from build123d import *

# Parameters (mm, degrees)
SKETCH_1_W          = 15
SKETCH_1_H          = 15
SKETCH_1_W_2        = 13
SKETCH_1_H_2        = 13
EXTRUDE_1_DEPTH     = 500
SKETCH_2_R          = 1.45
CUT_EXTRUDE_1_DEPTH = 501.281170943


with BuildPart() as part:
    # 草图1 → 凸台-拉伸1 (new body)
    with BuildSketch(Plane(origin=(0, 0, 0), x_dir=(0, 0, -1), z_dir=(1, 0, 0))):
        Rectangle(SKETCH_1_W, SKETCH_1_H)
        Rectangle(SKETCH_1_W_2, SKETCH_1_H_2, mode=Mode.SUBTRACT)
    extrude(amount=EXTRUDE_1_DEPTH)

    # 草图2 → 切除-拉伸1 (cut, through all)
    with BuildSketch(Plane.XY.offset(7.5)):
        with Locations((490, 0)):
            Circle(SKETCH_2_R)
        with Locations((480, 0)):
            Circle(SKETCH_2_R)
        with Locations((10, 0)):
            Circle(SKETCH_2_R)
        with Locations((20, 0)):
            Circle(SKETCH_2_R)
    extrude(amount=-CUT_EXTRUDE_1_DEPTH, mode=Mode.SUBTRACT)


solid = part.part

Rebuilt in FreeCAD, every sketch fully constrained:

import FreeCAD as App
import Part
import Sketcher
from FreeCAD import Vector

doc = App.newDocument("Part")
body = doc.addObject("PartDesign::Body", "Body")

# Sketch on YZ plane
sketch1 = body.newObject("Sketcher::SketchObject", "Sketch")
sketch1.AttachmentSupport = (doc.getObject("YZ_Plane"), [""])
sketch1.MapMode = "FlatFace"
sketch1.addGeometry(Part.LineSegment(Vector(8, 8, 0), Vector(-8, 8, 0)), False)
sketch1.addGeometry(Part.LineSegment(Vector(-8, 8, 0), Vector(-8, -8, 0)), False)
sketch1.addGeometry(Part.LineSegment(Vector(-8, -8, 0), Vector(8, -8, 0)), False)
sketch1.addGeometry(Part.LineSegment(Vector(8, -8, 0), Vector(8, 8, 0)), False)
sketch1.addGeometry(Part.LineSegment(Vector(-6, -6, 0), Vector(-6, 6, 0)), False)
sketch1.addGeometry(Part.LineSegment(Vector(-6, 6, 0), Vector(6, 6, 0)), False)
sketch1.addGeometry(Part.LineSegment(Vector(6, 6, 0), Vector(6, -6, 0)), False)
sketch1.addGeometry(Part.LineSegment(Vector(6, -6, 0), Vector(-6, -6, 0)), False)
sketch1.addConstraint(Sketcher.Constraint("Coincident", 0, 2, 1, 1))
sketch1.addConstraint(Sketcher.Constraint("Coincident", 1, 2, 2, 1))
sketch1.addConstraint(Sketcher.Constraint("Coincident", 2, 2, 3, 1))
sketch1.addConstraint(Sketcher.Constraint("Coincident", 3, 2, 0, 1))
sketch1.addConstraint(Sketcher.Constraint("Coincident", 4, 2, 5, 1))
sketch1.addConstraint(Sketcher.Constraint("Coincident", 5, 2, 6, 1))
sketch1.addConstraint(Sketcher.Constraint("Coincident", 6, 2, 7, 1))
sketch1.addConstraint(Sketcher.Constraint("Coincident", 7, 2, 4, 1))
sketch1.addConstraint(Sketcher.Constraint("Horizontal", 0))
sketch1.addConstraint(Sketcher.Constraint("Vertical", 1))
sketch1.addConstraint(Sketcher.Constraint("Horizontal", 2))
sketch1.addConstraint(Sketcher.Constraint("Vertical", 3))
sketch1.addConstraint(Sketcher.Constraint("Vertical", 4))
sketch1.addConstraint(Sketcher.Constraint("Horizontal", 5))
sketch1.addConstraint(Sketcher.Constraint("Vertical", 6))
sketch1.addConstraint(Sketcher.Constraint("Horizontal", 7))
sketch1.addConstraint(Sketcher.Constraint("Symmetric", 0, 2, 2, 2, -1, 1))
sketch1.addConstraint(Sketcher.Constraint("Symmetric", 4, 2, 6, 2, -1, 1))
sketch1.addConstraint(Sketcher.Constraint("Equal", 2, 1))
sketch1.addConstraint(Sketcher.Constraint("Equal", 7, 4))
sketch1.addConstraint(Sketcher.Constraint("DistanceX", 0, 2, 0, 1, 15.0))
sketch1.addConstraint(Sketcher.Constraint("DistanceX", 5, 1, 5, 2, 13.0))
pad1 = body.newObject("PartDesign::Pad", "Pad")
pad1.Profile = sketch1
pad1.Length = 500

# Sketch on XY plane
sketch2 = body.newObject("Sketcher::SketchObject", "Sketch001")
sketch2.AttachmentSupport = (doc.getObject("XY_Plane"), [""])
sketch2.MapMode = "FlatFace"
sketch2.AttachmentOffset = App.Placement(Vector(0, 0, 7.5), App.Rotation())
sketch2.addGeometry(Part.Circle(Vector(490, 0, 0), Vector(0, 0, 1), 1.4), False)
sketch2.addGeometry(Part.Circle(Vector(480, 0, 0), Vector(0, 0, 1), 1.4), False)
sketch2.addGeometry(Part.Circle(Vector(10, 0, 0), Vector(0, 0, 1), 1.4), False)
sketch2.addGeometry(Part.Circle(Vector(20, 0, 0), Vector(0, 0, 1), 1.4), False)
sketch2.addConstraint(Sketcher.Constraint("Equal", 0, 1))
sketch2.addConstraint(Sketcher.Constraint("Equal", 1, 2))
sketch2.addConstraint(Sketcher.Constraint("Equal", 2, 3))
sketch2.addConstraint(Sketcher.Constraint("PointOnObject", 0, 3, -1))
sketch2.addConstraint(Sketcher.Constraint("PointOnObject", 1, 3, -1))
sketch2.addConstraint(Sketcher.Constraint("PointOnObject", 2, 3, -1))
sketch2.addConstraint(Sketcher.Constraint("PointOnObject", 3, 3, -1))
sketch2.addConstraint(Sketcher.Constraint("Diameter", 0, 2.9))
sketch2.addConstraint(Sketcher.Constraint("DistanceX", -1, 1, 0, 3, 490.0))
sketch2.addConstraint(Sketcher.Constraint("DistanceX", -1, 1, 1, 3, 480.0))
sketch2.addConstraint(Sketcher.Constraint("DistanceX", -1, 1, 2, 3, 10.0))
sketch2.addConstraint(Sketcher.Constraint("DistanceX", -1, 1, 3, 3, 20.0))
pocket1 = body.newObject("PartDesign::Pocket", "Pocket")
pocket1.Profile = sketch2
pocket1.Type = "ThroughAll"

doc.recompute()
